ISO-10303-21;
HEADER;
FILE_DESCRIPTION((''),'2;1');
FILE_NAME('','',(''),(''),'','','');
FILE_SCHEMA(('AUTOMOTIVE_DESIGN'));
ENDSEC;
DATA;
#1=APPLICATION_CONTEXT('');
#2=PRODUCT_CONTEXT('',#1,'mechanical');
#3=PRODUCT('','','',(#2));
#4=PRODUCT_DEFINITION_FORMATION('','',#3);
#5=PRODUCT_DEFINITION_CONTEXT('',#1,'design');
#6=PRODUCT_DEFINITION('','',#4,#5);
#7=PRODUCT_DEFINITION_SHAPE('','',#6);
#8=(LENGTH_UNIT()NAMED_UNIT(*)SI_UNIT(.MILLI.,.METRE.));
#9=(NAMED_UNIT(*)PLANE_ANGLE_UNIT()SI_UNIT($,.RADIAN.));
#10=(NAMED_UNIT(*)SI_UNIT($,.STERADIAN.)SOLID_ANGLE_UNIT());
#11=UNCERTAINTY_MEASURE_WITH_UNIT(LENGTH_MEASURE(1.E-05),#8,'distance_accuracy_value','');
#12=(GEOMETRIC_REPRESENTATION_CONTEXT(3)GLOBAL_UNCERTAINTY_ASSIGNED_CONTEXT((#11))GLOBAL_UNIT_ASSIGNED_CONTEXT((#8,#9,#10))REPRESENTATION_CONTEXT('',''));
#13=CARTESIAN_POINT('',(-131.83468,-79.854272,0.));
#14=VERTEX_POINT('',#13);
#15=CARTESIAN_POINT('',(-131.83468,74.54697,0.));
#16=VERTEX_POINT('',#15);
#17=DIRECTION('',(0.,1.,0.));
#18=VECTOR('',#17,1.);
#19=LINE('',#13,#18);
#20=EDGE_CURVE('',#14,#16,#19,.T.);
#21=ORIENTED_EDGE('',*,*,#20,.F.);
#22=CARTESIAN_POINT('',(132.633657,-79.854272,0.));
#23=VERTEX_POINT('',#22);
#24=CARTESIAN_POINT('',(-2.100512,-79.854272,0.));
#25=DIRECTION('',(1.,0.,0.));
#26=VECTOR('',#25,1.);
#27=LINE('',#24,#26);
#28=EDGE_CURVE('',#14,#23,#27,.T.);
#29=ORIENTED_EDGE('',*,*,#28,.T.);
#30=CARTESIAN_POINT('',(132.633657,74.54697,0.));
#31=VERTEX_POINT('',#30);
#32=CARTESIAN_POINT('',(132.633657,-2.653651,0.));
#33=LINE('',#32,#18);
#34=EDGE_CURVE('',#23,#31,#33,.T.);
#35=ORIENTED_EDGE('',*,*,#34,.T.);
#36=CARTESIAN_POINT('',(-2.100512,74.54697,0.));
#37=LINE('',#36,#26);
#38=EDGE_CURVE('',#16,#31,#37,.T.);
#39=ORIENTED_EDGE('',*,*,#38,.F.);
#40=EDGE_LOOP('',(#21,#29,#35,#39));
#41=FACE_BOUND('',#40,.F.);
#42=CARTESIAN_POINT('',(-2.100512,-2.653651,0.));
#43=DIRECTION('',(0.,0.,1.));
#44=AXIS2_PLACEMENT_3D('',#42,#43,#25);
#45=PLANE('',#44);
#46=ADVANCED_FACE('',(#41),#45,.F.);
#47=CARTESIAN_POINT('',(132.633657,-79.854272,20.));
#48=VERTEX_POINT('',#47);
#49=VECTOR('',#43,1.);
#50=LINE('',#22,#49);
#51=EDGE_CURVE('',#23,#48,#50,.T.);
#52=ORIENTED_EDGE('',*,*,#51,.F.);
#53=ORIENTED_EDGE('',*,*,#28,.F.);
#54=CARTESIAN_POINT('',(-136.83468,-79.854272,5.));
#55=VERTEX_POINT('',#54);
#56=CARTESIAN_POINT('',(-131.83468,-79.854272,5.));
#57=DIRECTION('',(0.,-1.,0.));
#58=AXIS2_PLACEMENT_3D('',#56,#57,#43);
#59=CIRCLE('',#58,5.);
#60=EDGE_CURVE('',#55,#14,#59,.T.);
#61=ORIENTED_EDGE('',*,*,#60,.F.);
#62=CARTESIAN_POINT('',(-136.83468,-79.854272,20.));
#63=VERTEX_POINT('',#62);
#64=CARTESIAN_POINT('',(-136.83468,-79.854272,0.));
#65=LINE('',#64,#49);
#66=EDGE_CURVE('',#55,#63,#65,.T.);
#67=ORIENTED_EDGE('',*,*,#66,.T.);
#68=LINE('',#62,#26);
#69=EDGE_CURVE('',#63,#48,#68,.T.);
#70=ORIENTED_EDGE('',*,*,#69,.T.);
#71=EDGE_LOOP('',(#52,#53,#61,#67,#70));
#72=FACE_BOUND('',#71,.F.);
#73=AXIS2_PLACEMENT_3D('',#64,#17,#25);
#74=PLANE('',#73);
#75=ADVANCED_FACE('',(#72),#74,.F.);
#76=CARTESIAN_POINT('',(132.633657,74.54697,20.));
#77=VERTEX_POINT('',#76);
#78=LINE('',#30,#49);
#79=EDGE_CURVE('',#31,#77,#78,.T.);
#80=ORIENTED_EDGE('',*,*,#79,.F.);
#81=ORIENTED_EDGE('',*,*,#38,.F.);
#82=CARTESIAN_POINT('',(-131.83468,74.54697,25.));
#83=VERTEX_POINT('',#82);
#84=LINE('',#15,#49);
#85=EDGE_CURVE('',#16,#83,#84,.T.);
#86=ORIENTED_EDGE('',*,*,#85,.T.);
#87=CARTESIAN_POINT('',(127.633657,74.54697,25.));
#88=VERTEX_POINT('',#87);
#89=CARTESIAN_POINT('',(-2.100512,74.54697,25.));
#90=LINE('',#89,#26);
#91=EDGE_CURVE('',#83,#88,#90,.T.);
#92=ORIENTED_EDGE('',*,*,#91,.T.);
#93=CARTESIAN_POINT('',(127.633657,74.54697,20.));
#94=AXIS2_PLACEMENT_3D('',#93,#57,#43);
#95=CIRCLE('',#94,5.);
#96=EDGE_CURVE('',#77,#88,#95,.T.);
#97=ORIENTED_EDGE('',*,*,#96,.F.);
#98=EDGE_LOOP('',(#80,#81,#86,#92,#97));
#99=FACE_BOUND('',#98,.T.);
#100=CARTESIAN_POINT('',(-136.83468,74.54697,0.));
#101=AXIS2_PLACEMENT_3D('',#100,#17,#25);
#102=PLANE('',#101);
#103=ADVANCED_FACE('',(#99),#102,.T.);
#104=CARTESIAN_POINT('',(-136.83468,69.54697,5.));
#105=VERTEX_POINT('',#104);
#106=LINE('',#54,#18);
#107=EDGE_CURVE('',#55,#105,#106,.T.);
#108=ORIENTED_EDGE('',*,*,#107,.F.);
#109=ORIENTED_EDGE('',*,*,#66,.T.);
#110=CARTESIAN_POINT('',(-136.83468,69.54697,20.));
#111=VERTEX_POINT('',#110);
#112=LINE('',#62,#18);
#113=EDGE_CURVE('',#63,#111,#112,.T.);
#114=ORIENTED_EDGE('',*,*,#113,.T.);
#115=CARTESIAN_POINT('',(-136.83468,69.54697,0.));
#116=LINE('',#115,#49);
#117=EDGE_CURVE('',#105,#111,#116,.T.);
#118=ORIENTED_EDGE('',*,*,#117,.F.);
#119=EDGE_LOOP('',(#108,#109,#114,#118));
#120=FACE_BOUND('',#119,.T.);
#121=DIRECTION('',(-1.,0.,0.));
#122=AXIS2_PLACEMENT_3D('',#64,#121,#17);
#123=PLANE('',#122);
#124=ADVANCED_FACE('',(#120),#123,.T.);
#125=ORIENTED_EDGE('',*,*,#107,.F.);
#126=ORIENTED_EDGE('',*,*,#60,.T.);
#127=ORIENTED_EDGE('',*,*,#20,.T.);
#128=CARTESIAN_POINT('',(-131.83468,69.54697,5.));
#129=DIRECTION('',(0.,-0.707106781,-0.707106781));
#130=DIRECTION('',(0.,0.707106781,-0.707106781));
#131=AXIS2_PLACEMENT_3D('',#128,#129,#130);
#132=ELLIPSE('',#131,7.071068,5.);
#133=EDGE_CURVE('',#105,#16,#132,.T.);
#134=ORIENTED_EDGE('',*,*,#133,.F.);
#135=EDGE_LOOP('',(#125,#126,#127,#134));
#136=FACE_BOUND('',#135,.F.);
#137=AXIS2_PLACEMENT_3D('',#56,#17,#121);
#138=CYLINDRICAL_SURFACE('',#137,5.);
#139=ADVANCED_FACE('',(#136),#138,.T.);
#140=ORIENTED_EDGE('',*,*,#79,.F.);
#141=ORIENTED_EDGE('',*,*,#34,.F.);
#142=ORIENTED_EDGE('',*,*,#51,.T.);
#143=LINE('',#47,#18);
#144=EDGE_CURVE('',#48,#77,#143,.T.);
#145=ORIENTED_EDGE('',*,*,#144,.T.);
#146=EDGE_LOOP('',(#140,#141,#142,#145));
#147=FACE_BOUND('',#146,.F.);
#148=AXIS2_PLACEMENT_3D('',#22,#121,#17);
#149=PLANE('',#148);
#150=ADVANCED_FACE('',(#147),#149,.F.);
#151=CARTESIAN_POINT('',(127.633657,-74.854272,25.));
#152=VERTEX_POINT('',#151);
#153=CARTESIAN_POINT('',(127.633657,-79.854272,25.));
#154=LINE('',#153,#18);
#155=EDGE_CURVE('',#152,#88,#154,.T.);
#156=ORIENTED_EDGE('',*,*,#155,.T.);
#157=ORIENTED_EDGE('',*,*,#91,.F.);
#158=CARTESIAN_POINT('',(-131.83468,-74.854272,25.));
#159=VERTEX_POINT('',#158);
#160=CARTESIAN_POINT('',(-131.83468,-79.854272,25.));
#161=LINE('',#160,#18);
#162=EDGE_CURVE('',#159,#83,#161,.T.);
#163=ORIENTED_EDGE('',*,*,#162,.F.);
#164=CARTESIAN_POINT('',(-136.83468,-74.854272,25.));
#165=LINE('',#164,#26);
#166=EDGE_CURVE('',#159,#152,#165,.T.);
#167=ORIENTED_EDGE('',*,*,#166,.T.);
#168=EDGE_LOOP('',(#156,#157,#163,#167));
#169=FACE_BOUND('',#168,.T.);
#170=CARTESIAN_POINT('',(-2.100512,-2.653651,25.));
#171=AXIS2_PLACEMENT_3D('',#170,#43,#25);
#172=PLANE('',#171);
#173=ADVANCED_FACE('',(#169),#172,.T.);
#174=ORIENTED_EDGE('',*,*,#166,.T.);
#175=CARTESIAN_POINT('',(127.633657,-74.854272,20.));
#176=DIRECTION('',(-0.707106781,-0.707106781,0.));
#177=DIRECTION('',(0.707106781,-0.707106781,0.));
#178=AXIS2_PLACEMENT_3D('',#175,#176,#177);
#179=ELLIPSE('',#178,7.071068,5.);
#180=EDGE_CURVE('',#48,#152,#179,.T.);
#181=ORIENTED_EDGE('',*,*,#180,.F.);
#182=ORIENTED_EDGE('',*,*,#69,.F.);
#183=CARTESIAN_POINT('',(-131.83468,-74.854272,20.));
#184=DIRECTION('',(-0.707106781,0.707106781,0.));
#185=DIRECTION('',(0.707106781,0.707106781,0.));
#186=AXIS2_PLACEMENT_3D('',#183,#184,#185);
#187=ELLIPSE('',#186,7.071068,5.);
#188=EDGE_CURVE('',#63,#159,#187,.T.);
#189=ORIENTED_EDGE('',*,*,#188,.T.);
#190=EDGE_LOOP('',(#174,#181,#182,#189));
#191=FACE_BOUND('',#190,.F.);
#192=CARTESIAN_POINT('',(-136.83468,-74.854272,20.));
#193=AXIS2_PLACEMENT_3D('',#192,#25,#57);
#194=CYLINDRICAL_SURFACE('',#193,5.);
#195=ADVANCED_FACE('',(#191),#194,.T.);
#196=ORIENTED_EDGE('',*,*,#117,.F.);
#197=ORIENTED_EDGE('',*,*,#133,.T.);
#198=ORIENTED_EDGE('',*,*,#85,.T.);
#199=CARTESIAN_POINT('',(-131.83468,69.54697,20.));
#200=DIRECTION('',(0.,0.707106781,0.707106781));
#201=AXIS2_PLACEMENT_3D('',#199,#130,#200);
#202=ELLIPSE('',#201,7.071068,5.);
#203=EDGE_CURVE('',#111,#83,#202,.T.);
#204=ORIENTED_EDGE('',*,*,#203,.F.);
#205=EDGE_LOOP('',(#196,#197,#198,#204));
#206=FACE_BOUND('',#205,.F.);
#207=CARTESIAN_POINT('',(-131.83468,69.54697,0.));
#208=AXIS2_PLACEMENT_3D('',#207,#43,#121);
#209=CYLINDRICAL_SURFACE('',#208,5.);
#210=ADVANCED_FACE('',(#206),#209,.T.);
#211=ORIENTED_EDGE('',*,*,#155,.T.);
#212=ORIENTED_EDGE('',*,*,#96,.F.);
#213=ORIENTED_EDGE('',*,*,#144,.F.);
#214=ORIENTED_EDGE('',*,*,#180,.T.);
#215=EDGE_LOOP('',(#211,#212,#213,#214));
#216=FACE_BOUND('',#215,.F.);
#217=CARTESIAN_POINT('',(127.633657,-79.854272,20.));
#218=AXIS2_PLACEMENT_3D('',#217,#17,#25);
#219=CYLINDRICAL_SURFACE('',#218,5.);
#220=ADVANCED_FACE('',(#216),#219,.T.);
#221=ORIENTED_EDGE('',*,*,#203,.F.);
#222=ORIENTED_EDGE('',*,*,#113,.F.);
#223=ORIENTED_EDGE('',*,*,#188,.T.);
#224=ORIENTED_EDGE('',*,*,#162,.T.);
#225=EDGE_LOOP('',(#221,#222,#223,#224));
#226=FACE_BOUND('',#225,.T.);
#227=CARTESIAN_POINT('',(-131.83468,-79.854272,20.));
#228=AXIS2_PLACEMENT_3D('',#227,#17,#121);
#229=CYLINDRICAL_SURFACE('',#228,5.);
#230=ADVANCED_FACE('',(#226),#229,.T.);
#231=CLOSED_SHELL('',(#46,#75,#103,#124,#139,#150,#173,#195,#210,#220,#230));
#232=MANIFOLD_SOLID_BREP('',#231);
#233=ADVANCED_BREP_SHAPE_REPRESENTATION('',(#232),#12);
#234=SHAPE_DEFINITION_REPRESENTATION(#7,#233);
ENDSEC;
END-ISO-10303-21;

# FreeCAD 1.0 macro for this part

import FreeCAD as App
import Part
import Sketcher


def edges_at(feature, points):
    """Names of the edges that pass closest to the given points."""
    edges = feature.Shape.Edges
    near = lambda p: min(range(len(edges)), key=lambda i: edges[i].distToShape(Part.Vertex(*p))[0])
    return sorted({f"Edge{near(p) + 1}" for p in points})


def add_polygon(sketch, points):
    """Adds a closed chain of lines whose ends are joined by coincident constraints."""
    first, n = sketch.GeometryCount, len(points)
    for a, b in zip(points, points[1:] + points[:1]):
        sketch.addGeometry(Part.LineSegment(App.Vector(*a, 0), App.Vector(*b, 0)), False)
    for i in range(n):
        sketch.addConstraint(Sketcher.Constraint("Coincident", first + i, 2, first + (i + 1) % n, 1))

doc = App.newDocument("Part")
body = doc.addObject("PartDesign::Body", "Body")

sketch1 = body.newObject("Sketcher::SketchObject", "Sketch")
sketch1.AttachmentSupport = (doc.getObject("XY_Plane"), [""])
sketch1.MapMode = "FlatFace"
add_polygon(sketch1, [(-137, 75), (-137, -80), (133, -80), (133, 75)])
sketch1.addConstraint([
    Sketcher.Constraint("Vertical", 0),
    Sketcher.Constraint("Horizontal", 1),
    Sketcher.Constraint("Vertical", 2),
    Sketcher.Constraint("Horizontal", 3),
    Sketcher.Constraint("DistanceY", 0, 2, 0, 1, 154.401242),
    Sketcher.Constraint("DistanceX", 1, 1, 1, 2, 269.468337),
    Sketcher.Constraint("DistanceX", 0, 2, -1, 1, 136.83468),
    Sketcher.Constraint("DistanceY", 0, 2, -1, 1, 79.854272),
])
pad1 = body.newObject("PartDesign::Pad", "Pad")
pad1.Profile = sketch1
pad1.Length = 25
doc.recompute()

fillet = body.newObject("PartDesign::Fillet", "Fillet")
fillet.Base = (pad1, edges_at(pad1, [
    (-2.101, -79.854, 25),
    (132.634, -2.654, 25),
    (-136.835, -2.654, 25),
    (-136.835, -2.654, 0),
    (-136.835, 74.547, 12.5),
]))
fillet.Radius = 5

doc.recompute()
